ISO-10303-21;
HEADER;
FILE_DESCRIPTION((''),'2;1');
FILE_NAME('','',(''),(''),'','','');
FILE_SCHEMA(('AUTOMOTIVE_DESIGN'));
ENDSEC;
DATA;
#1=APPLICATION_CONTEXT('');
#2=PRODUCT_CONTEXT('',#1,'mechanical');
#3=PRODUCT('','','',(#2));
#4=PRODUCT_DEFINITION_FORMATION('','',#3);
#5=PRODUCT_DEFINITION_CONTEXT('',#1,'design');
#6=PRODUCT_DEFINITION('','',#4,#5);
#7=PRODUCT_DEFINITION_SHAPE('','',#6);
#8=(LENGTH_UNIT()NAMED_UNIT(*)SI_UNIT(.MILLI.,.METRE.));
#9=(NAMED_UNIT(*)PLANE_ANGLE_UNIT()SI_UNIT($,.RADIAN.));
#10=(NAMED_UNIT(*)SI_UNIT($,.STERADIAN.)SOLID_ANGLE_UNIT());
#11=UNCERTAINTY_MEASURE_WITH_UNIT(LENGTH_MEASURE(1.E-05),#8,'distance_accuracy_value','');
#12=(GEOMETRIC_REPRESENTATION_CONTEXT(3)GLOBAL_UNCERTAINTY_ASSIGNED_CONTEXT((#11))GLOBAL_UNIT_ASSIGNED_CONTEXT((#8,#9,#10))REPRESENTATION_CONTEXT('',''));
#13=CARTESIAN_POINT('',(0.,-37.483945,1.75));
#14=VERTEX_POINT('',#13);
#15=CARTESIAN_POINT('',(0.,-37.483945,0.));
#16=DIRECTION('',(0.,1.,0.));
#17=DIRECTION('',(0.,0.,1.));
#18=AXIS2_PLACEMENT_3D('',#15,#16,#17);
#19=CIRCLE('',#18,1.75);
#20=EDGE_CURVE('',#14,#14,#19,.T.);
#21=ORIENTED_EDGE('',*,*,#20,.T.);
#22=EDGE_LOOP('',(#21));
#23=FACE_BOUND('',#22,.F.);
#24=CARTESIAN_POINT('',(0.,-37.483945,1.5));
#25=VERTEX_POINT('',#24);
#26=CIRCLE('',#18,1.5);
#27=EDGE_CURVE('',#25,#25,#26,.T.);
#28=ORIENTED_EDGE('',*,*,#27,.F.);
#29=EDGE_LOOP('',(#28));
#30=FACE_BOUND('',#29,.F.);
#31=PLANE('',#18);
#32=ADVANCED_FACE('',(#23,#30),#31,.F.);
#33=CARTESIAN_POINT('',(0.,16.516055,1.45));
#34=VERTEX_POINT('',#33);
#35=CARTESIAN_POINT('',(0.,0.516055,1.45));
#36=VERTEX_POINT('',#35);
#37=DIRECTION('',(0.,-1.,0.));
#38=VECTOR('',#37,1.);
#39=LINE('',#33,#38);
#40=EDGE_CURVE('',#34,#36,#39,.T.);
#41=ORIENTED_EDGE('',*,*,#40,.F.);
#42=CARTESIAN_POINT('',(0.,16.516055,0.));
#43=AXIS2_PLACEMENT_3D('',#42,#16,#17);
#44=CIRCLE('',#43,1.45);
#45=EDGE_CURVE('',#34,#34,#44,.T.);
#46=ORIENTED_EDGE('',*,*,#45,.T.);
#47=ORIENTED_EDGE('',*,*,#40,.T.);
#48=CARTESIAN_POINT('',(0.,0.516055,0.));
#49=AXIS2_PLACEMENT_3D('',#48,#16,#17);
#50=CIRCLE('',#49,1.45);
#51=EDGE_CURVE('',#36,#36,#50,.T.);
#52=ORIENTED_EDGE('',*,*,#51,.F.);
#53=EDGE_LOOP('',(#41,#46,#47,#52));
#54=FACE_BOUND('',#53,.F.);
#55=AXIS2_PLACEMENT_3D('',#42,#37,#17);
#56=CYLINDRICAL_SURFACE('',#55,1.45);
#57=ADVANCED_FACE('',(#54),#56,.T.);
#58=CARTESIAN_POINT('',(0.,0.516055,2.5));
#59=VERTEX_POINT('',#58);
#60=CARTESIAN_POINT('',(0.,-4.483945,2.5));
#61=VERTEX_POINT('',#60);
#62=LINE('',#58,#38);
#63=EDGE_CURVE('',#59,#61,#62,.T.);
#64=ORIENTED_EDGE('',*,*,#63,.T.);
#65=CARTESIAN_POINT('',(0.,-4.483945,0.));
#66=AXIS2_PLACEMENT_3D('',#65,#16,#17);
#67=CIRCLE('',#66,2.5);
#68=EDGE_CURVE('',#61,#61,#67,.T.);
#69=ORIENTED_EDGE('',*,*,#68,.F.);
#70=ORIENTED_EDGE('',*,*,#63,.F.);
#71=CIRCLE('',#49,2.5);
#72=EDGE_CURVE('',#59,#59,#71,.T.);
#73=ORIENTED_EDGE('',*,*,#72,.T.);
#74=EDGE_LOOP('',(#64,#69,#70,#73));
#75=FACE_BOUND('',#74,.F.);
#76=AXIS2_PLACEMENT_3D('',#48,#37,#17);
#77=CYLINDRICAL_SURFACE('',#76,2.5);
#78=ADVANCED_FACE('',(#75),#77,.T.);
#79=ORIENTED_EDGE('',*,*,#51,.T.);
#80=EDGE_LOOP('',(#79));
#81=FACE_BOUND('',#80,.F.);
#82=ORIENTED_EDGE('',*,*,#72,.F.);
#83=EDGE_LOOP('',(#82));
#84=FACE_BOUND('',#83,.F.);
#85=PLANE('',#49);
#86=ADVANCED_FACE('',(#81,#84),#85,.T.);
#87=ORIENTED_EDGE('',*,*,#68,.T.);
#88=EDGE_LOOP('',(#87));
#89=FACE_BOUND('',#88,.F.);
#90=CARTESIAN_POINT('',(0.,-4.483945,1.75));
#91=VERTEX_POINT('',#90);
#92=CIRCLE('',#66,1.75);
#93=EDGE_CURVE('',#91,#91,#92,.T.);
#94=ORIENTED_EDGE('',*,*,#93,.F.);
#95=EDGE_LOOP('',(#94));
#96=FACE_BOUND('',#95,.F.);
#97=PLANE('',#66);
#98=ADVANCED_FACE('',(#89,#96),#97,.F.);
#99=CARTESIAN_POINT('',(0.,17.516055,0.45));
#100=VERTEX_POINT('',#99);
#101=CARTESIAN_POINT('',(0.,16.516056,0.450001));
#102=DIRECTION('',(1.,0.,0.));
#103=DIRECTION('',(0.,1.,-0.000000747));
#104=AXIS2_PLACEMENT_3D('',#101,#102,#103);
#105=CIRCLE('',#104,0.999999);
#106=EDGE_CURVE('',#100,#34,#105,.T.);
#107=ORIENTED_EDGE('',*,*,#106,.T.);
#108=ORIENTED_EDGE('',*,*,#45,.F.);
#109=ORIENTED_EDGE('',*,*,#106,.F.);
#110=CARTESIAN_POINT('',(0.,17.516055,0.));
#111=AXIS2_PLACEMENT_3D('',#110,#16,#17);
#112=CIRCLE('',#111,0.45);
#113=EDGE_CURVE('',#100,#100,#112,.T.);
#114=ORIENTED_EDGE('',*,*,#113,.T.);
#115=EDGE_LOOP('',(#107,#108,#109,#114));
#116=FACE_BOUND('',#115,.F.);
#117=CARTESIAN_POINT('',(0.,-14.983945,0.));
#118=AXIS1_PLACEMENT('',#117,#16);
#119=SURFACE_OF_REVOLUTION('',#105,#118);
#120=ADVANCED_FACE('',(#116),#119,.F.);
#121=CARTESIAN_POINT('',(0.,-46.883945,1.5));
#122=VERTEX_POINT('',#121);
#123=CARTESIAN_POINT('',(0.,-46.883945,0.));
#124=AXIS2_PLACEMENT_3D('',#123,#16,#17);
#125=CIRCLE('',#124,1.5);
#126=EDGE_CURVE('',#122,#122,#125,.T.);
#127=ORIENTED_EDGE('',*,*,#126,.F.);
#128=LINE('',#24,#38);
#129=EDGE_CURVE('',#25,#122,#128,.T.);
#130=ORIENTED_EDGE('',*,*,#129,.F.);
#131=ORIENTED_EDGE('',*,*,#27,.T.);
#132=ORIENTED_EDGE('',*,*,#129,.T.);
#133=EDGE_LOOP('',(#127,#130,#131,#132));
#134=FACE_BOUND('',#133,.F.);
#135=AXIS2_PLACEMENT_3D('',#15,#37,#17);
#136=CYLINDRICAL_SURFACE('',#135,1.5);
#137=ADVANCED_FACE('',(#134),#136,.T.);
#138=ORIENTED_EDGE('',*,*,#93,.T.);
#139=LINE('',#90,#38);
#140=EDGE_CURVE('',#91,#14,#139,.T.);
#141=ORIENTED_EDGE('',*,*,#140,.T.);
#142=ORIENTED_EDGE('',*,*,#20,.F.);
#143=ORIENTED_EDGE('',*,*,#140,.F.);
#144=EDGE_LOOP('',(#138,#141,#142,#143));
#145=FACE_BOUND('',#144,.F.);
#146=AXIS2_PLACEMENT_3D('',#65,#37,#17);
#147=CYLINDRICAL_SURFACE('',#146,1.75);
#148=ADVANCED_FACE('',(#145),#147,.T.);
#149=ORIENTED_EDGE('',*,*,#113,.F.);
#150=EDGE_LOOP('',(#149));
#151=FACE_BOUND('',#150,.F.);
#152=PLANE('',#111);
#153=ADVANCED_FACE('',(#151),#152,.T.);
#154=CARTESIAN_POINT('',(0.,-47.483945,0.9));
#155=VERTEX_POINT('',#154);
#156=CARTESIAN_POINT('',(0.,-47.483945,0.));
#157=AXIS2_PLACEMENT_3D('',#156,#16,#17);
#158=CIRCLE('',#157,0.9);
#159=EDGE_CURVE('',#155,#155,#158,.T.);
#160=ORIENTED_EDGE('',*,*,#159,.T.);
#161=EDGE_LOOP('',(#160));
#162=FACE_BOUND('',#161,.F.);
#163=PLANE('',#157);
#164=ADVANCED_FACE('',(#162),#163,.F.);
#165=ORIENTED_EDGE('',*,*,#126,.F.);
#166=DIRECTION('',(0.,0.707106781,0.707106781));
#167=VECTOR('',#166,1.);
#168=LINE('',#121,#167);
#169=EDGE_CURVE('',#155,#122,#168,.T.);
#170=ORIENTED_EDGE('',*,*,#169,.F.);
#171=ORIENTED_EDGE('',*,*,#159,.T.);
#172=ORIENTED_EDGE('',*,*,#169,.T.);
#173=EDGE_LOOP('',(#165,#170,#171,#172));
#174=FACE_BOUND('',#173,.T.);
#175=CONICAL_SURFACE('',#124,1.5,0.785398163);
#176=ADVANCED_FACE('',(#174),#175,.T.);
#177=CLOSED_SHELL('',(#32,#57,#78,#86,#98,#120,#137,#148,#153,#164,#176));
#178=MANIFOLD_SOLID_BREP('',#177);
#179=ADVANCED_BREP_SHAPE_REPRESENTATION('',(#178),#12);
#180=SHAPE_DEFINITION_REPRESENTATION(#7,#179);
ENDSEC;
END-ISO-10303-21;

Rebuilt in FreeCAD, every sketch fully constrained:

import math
import FreeCAD as App
import Part
import Sketcher

V = App.Vector


def edges_at(feature, points):
    """Names of the edges that pass closest to the given points."""
    edges = feature.Shape.Edges
    near = lambda p: min(range(len(edges)), key=lambda i: edges[i].distToShape(Part.Vertex(*p))[0])
    return sorted({f"Edge{near(p) + 1}" for p in points})

doc = App.newDocument("Part")
body = doc.addObject("PartDesign::Body", "Body")

sketch1 = doc.addObject("Sketcher::SketchObject", "Sketch")
body.addObject(sketch1)
sketch1.AttachmentSupport = (doc.YZ_Plane, [""])
sketch1.MapMode = "FlatFace"
sketch1.addGeometry(Part.LineSegment(V(-47.48, 1.5, 0), V(-47.48, 0, 0)), False)
sketch1.addGeometry(Part.LineSegment(V(-47.48, 0, 0), V(17.52, 0, 0)), False)
sketch1.addGeometry(Part.LineSegment(V(17.52, 0, 0), V(17.52, 0.45, 0)), False)
sketch1.addGeometry(Part.ArcOfCircle(Part.Circle(V(16.52, 0.45, 0), V(0, 0, 1), 1), math.radians(0), math.radians(90)), False)
sketch1.addGeometry(Part.LineSegment(V(16.52, 1.45, 0), V(0.52, 1.45, 0)), False)
sketch1.addGeometry(Part.LineSegment(V(0.52, 1.45, 0), V(0.52, 2.5, 0)), False)
sketch1.addGeometry(Part.LineSegment(V(0.52, 2.5, 0), V(-4.48, 2.5, 0)), False)
sketch1.addGeometry(Part.LineSegment(V(-4.48, 2.5, 0), V(-4.48, 1.75, 0)), False)
sketch1.addGeometry(Part.LineSegment(V(-4.48, 1.75, 0), V(-37.48, 1.75, 0)), False)
sketch1.addGeometry(Part.LineSegment(V(-37.48, 1.75, 0), V(-37.48, 1.5, 0)), False)
sketch1.addGeometry(Part.LineSegment(V(-37.48, 1.5, 0), V(-47.48, 1.5, 0)), False)
sketch1.addConstraint(Sketcher.Constraint("Coincident", 0, 2, 1, 1))
sketch1.addConstraint(Sketcher.Constraint("Coincident", 1, 2, 2, 1))
sketch1.addConstraint(Sketcher.Constraint("Tangent", 2, 2, 3, 1))
sketch1.addConstraint(Sketcher.Constraint("Tangent", 3, 2, 4, 1))
sketch1.addConstraint(Sketcher.Constraint("Coincident", 4, 2, 5, 1))
sketch1.addConstraint(Sketcher.Constraint("Coincident", 5, 2, 6, 1))
sketch1.addConstraint(Sketcher.Constraint("Coincident", 6, 2, 7, 1))
sketch1.addConstraint(Sketcher.Constraint("Coincident", 7, 2, 8, 1))
sketch1.addConstraint(Sketcher.Constraint("Coincident", 8, 2, 9, 1))
sketch1.addConstraint(Sketcher.Constraint("Coincident", 9, 2, 10, 1))
sketch1.addConstraint(Sketcher.Constraint("Coincident", 10, 2, 0, 1))
sketch1.addConstraint(Sketcher.Constraint("Vertical", 0))
sketch1.addConstraint(Sketcher.Constraint("Horizontal", 1))
sketch1.addConstraint(Sketcher.Constraint("Vertical", 2))
sketch1.addConstraint(Sketcher.Constraint("Horizontal", 4))
sketch1.addConstraint(Sketcher.Constraint("Vertical", 5))
sketch1.addConstraint(Sketcher.Constraint("Horizontal", 6))
sketch1.addConstraint(Sketcher.Constraint("Vertical", 7))
sketch1.addConstraint(Sketcher.Constraint("Horizontal", 8))
sketch1.addConstraint(Sketcher.Constraint("Vertical", 9))
sketch1.addConstraint(Sketcher.Constraint("Horizontal", 10))
sketch1.addConstraint(Sketcher.Constraint("PointOnObject", 0, 2, -1))
sketch1.addConstraint(Sketcher.Constraint("Radius", 3, 0.999999))
sketch1.addConstraint(Sketcher.Constraint("DistanceX", 1, 1, 1, 2, 65.0))
sketch1.addConstraint(Sketcher.Constraint("DistanceX", 4, 2, 4, 1, 16.0))
sketch1.addConstraint(Sketcher.Constraint("DistanceX", 6, 2, 6, 1, 5.0))
sketch1.addConstraint(Sketcher.Constraint("DistanceX", 8, 2, 8, 1, 33.0))
sketch1.addConstraint(Sketcher.Constraint("DistanceY", 0, 2, 0, 1, 1.5))
sketch1.addConstraint(Sketcher.Constraint("DistanceY", 9, 2, 6, 2, 1.0))
sketch1.addConstraint(Sketcher.Constraint("DistanceY", 2, 1, 2, 2, 0.45))
sketch1.addConstraint(Sketcher.Constraint("DistanceY", 7, 2, 7, 1, 0.75))
sketch1.addConstraint(Sketcher.Constraint("DistanceX", -1, 1, 3, 3, 16.516056))
revolution = doc.addObject("PartDesign::Revolution", "Revolution")
body.addObject(revolution)
revolution.Profile = sketch1
revolution.ReferenceAxis = (sketch1, ["H_Axis"])
revolution.Angle = 360
doc.recompute()

chamfer = doc.addObject("PartDesign::Chamfer", "Chamfer")
body.addObject(chamfer)
chamfer.Base = (revolution, edges_at(revolution, [(0, -47.484, -1.5)]))
chamfer.Size = 0.6

doc.recompute()
